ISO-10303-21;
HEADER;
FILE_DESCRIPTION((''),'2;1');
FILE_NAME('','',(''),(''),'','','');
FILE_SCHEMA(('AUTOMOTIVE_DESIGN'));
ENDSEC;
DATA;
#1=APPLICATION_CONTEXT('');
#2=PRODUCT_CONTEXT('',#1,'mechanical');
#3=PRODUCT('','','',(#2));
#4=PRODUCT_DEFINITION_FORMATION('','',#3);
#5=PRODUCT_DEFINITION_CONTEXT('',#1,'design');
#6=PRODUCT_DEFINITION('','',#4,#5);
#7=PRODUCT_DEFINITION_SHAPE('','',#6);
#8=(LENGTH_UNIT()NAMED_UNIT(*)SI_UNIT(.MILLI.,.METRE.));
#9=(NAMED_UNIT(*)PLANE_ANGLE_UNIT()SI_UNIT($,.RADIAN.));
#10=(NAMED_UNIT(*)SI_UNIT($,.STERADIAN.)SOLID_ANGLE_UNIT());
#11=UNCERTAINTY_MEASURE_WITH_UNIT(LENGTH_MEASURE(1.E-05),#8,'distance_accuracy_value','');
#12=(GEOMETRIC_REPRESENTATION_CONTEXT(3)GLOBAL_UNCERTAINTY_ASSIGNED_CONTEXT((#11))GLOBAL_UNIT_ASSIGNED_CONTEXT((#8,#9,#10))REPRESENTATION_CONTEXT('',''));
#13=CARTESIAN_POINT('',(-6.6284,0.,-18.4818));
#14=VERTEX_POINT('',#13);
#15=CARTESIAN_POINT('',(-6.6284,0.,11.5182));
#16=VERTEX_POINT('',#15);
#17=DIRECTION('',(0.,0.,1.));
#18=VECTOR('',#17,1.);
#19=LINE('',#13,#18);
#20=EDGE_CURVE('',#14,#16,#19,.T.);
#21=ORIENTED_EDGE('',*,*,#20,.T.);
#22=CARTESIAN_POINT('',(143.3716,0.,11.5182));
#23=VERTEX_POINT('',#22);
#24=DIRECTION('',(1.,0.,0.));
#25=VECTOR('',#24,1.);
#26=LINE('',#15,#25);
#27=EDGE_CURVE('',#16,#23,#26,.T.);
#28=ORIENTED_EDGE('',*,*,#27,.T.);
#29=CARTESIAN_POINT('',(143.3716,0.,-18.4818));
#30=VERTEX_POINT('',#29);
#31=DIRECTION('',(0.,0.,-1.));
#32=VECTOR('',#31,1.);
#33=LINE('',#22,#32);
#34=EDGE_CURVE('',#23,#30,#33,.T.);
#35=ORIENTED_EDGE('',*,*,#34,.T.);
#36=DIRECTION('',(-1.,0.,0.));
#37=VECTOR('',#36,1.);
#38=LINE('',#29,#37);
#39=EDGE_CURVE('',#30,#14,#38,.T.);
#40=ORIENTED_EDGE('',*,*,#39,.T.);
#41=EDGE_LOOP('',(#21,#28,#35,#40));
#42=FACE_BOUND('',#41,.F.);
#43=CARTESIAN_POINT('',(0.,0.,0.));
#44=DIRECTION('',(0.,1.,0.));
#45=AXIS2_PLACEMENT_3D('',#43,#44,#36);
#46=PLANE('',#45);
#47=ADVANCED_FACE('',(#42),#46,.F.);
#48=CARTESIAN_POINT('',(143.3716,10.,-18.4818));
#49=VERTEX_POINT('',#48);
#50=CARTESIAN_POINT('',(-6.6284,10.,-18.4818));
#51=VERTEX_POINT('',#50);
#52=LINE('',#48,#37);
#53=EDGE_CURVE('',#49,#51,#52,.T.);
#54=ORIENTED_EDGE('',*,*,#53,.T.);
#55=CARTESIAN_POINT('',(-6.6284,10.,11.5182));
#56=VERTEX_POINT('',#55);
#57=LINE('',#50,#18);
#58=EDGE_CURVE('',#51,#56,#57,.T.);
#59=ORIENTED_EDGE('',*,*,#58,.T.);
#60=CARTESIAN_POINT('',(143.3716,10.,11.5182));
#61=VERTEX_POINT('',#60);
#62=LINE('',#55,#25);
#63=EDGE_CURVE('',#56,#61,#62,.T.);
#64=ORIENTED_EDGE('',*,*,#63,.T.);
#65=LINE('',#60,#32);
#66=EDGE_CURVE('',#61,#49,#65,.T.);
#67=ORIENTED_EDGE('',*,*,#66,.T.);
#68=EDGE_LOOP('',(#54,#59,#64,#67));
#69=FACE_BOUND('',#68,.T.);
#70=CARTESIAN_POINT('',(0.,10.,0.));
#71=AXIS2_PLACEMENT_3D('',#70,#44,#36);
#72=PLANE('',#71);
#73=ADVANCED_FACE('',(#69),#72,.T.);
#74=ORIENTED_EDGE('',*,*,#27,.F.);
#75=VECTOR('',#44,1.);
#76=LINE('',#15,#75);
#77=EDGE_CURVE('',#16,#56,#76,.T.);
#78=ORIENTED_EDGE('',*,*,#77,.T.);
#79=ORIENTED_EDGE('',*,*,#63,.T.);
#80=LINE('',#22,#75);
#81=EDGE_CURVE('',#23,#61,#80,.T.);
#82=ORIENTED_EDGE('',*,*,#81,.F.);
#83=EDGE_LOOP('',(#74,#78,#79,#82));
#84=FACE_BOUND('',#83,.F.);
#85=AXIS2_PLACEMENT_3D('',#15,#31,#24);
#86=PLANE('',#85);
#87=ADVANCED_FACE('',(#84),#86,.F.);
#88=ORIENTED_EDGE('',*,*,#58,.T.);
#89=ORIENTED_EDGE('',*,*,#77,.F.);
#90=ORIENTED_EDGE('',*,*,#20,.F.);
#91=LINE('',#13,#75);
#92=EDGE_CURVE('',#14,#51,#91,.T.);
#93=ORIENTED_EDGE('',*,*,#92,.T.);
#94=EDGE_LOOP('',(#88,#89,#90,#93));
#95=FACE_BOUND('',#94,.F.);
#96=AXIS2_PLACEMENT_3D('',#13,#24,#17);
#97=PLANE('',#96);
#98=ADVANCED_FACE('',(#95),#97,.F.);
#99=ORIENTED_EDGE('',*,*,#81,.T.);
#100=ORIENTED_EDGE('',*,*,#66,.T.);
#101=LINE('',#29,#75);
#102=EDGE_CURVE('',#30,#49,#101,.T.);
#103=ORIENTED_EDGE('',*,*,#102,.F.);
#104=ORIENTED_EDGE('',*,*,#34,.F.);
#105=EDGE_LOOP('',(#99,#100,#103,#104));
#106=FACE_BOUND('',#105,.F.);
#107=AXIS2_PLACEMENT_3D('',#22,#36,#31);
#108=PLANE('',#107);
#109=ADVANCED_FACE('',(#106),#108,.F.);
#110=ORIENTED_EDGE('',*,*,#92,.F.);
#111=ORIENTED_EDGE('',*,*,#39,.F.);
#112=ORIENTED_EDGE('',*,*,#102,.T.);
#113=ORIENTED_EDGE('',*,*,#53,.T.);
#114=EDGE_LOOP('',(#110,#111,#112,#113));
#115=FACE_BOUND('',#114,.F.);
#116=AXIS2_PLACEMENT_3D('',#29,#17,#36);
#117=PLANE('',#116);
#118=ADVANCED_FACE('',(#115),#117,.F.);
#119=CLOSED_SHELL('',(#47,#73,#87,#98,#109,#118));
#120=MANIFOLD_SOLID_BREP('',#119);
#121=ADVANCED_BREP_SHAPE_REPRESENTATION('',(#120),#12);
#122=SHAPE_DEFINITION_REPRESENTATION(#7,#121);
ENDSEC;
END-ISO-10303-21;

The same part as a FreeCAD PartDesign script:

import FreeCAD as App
import Part
import Sketcher
Q = App.Units.Quantity

doc = App.newDocument("Part")
body = doc.addObject("PartDesign::Body", "Body")

# Sketch on XZ plane
sketch1 = body.newObject("Sketcher::SketchObject", "Sketch")
sketch1.AttachmentSupport = (doc.getObject("XZ_Plane"), [""])
sketch1.MapMode = "FlatFace"
sketch1.addGeometry([
    Part.LineSegment(App.Vector(-7, -18, 0), App.Vector(-7, 12, 0)),
    Part.LineSegment(App.Vector(-7, 12, 0), App.Vector(143, 12, 0)),
    Part.LineSegment(App.Vector(143, 12, 0), App.Vector(143, -18, 0)),
    Part.LineSegment(App.Vector(143, -18, 0), App.Vector(-7, -18, 0)),
], False)
sketch1.addConstraint([
    Sketcher.Constraint("Coincident", 0, 2, 1, 1),
    Sketcher.Constraint("Coincident", 1, 2, 2, 1),
    Sketcher.Constraint("Coincident", 2, 2, 3, 1),
    Sketcher.Constraint("Coincident", 3, 2, 0, 1),
    Sketcher.Constraint("Vertical", 0),
    Sketcher.Constraint("Horizontal", 1),
    Sketcher.Constraint("Vertical", 2),
    Sketcher.Constraint("Horizontal", 3),
    Sketcher.Constraint("DistanceX", 1, 1, 1, 2, Q("150 mm")),
    Sketcher.Constraint("DistanceY", 0, 1, 0, 2, Q("30 mm")),
    Sketcher.Constraint("DistanceX", 0, 2, -1, 1, Q("6.6284 mm")),
    Sketcher.Constraint("DistanceY", -1, 1, 0, 2, Q("11.5182 mm")),
])
pad1 = body.newObject("PartDesign::Pad", "Pad")
pad1.Profile = sketch1
pad1.Length = 10
pad1.Reversed = True

doc.recompute()
